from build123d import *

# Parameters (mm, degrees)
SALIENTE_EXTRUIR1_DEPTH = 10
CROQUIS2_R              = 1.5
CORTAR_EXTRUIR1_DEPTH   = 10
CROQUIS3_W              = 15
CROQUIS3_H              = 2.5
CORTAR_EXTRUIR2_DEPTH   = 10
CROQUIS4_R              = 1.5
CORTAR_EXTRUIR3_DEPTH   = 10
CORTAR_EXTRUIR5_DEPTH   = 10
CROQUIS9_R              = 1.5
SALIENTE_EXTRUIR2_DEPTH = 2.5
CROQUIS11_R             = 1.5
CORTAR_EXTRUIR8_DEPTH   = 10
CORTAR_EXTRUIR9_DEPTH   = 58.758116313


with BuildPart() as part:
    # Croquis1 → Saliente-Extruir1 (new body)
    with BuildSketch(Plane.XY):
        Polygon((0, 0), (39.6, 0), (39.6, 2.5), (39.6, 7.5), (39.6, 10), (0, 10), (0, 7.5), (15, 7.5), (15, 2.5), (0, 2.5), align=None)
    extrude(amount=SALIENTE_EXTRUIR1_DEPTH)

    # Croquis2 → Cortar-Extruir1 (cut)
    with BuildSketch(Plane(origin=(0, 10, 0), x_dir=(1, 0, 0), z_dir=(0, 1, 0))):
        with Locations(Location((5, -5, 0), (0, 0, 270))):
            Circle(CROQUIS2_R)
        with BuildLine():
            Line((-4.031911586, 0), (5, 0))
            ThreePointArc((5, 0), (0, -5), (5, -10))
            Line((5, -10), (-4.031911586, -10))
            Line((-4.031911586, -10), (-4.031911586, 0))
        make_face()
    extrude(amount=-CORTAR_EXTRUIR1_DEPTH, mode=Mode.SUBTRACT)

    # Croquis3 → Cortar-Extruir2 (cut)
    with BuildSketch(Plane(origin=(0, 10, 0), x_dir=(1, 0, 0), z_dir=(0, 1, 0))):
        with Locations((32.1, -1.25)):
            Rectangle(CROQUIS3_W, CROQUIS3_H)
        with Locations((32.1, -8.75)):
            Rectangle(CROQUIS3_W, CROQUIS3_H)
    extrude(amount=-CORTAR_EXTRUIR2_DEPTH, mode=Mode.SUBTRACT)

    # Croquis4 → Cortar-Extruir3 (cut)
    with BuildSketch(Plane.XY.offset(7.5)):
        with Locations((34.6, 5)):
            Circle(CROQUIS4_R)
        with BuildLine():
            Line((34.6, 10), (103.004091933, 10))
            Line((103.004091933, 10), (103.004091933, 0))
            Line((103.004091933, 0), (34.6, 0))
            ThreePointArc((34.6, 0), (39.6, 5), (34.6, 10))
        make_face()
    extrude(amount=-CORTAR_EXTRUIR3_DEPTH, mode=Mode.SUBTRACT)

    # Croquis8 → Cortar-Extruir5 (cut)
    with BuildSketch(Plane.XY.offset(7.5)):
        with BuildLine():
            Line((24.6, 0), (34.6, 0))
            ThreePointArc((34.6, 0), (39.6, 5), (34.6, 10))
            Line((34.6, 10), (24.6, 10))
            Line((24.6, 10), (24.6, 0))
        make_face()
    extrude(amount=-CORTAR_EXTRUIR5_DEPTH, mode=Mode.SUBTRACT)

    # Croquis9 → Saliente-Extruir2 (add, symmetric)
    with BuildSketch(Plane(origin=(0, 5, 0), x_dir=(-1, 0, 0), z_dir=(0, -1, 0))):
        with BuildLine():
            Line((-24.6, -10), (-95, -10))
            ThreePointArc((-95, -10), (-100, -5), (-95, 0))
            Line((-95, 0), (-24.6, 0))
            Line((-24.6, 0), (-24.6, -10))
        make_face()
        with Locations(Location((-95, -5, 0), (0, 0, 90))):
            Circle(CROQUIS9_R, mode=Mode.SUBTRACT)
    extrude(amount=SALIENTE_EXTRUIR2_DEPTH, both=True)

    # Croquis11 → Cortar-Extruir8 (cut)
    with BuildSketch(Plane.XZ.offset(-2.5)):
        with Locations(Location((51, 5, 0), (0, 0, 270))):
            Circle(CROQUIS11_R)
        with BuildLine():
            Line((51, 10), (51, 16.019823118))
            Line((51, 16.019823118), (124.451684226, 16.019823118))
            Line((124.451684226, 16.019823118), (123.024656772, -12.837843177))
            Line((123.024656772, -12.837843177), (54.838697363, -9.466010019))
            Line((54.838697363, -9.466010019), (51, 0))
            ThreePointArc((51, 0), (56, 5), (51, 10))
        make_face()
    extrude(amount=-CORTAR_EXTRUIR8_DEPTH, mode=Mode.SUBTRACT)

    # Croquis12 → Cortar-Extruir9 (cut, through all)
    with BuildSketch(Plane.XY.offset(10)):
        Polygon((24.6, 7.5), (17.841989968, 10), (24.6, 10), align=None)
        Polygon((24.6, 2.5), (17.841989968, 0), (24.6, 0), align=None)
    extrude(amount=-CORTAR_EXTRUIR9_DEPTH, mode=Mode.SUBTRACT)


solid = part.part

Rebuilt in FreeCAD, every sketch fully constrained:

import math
import FreeCAD as App
import Part
import Sketcher


def add_polygon(sketch, points):
    """Adds a closed chain of lines whose ends are joined by coincident constraints."""
    first, n = sketch.GeometryCount, len(points)
    for a, b in zip(points, points[1:] + points[:1]):
        sketch.addGeometry(Part.LineSegment(App.Vector(*a, 0), App.Vector(*b, 0)), False)
    for i in range(n):
        sketch.addConstraint(Sketcher.Constraint("Coincident", first + i, 2, first + (i + 1) % n, 1))

doc = App.newDocument("Part")
body = doc.addObject("PartDesign::Body", "Body")

# Sketch on XY plane
sketch1 = body.newObject("Sketcher::SketchObject", "Sketch")
sketch1.AttachmentSupport = (doc.getObject("XY_Plane"), [""])
sketch1.MapMode = "FlatFace"
add_polygon(sketch1, [(0, 0), (39.6, 0), (39.6, 10), (0, 10), (0, 7.5), (15, 7.5), (15, 2.5), (0, 2.5)])  # lines 0-7
sketch1.addConstraint([
    Sketcher.Constraint("Horizontal", 0),
    Sketcher.Constraint("Vertical", 1),
    Sketcher.Constraint("Horizontal", 2),
    Sketcher.Constraint("Vertical", 3),
    Sketcher.Constraint("Horizontal", 4),
    Sketcher.Constraint("Vertical", 5),
    Sketcher.Constraint("Horizontal", 6),
    Sketcher.Constraint("Vertical", 7),
    Sketcher.Constraint("Coincident", 7, 2, -1, 1),
    Sketcher.Constraint("PointOnObject", 2, 2, -2),
    Sketcher.Constraint("Equal", 3, 7),
    Sketcher.Constraint("DistanceX", 4, 1, 4, 2, 15.0),
    Sketcher.Constraint("DistanceY", 1, 1, 1, 2, 10.0),
    Sketcher.Constraint("DistanceY", 5, 2, 5, 1, 5.0),
    Sketcher.Constraint("DistanceX", 0, 1, 0, 2, 39.6),
])
pad1 = body.newObject("PartDesign::Pad", "Pad")
pad1.Profile = sketch1
pad1.Length = 10

# Sketch on XZ plane
sketch2 = body.newObject("Sketcher::SketchObject", "Sketch001")
sketch2.AttachmentSupport = (doc.getObject("XZ_Plane"), [""])
sketch2.MapMode = "FlatFace"
sketch2.AttachmentOffset = App.Placement(App.Vector(0, 0, -10), App.Rotation())
sketch2.addGeometry([
    Part.Circle(App.Vector(5, 5, 0), App.Vector(0, 0, 1), 1.5),  # 0
    Part.LineSegment(App.Vector(5, 0, 0), App.Vector(-4, 0, 0)),  # 1
    Part.LineSegment(App.Vector(-4, 0, 0), App.Vector(-4, 10, 0)),  # 2
    Part.LineSegment(App.Vector(-4, 10, 0), App.Vector(5, 10, 0)),  # 3
    Part.ArcOfCircle(Part.Circle(App.Vector(5, 5, 0), App.Vector(0, 0, 1), 5), math.radians(90), math.radians(270)),  # 4
], False)
sketch2.addConstraint([
    Sketcher.Constraint("Coincident", 1, 2, 2, 1),
    Sketcher.Constraint("Coincident", 2, 2, 3, 1),
    Sketcher.Constraint("Tangent", 3, 2, 4, 1),
    Sketcher.Constraint("Tangent", 4, 2, 1, 1),
    Sketcher.Constraint("Horizontal", 1),
    Sketcher.Constraint("Vertical", 2),
    Sketcher.Constraint("Horizontal", 3),
    Sketcher.Constraint("Coincident", 4, 3, 0, 3),
    Sketcher.Constraint("PointOnObject", 1, 2, -1),
    Sketcher.Constraint("Diameter", 0, 3.0),
    Sketcher.Constraint("Radius", 4, 5.0),
    Sketcher.Constraint("DistanceX", -1, 1, 0, 3, 5.0),
    Sketcher.Constraint("DistanceX", 1, 2, 1, 1, 9.031912),
])
pocket1 = body.newObject("PartDesign::Pocket", "Pocket")
pocket1.Profile = sketch2
pocket1.Length = 10
pocket1.Reversed = True

# Sketch on XZ plane
sketch3 = body.newObject("Sketcher::SketchObject", "Sketch002")
sketch3.AttachmentSupport = (doc.getObject("XZ_Plane"), [""])
sketch3.MapMode = "FlatFace"
sketch3.AttachmentOffset = App.Placement(App.Vector(0, 0, -10), App.Rotation())
add_polygon(sketch3, [(24.6, 0), (24.6, 2.5), (39.6, 2.5), (39.6, 0)])  # lines 0-3
add_polygon(sketch3, [(24.6, 7.5), (24.6, 10), (39.6, 10), (39.6, 7.5)])  # lines 4-7
sketch3.addConstraint([
    Sketcher.Constraint("Vertical", 0),
    Sketcher.Constraint("Horizontal", 1),
    Sketcher.Constraint("Vertical", 2),
    Sketcher.Constraint("Horizontal", 3),
    Sketcher.Constraint("Vertical", 4),
    Sketcher.Constraint("Horizontal", 5),
    Sketcher.Constraint("Vertical", 6),
    Sketcher.Constraint("Horizontal", 7),
    Sketcher.Constraint("PointOnObject", 2, 2, -1),
    Sketcher.Constraint("Vertical", 3, 2, 4, 2),
    Sketcher.Constraint("Vertical", 2, 2, 5, 2),
    Sketcher.Constraint("Equal", 2, 4),
    Sketcher.Constraint("DistanceX", 1, 1, 1, 2, 15.0),
    Sketcher.Constraint("DistanceY", 0, 1, 0, 2, 2.5),
    Sketcher.Constraint("DistanceY", -1, 1, 4, 2, 10.0),
    Sketcher.Constraint("DistanceX", -1, 1, 0, 2, 24.6),
])
pocket2 = body.newObject("PartDesign::Pocket", "Pocket001")
pocket2.Profile = sketch3
pocket2.Length = 10
pocket2.Reversed = True

# Sketch on XY plane
sketch4 = body.newObject("Sketcher::SketchObject", "Sketch003")
sketch4.AttachmentSupport = (doc.getObject("XY_Plane"), [""])
sketch4.MapMode = "FlatFace"
sketch4.AttachmentOffset = App.Placement(App.Vector(0, 0, 7.5), App.Rotation())
sketch4.addGeometry([
    Part.Circle(App.Vector(34.6, 5, 0), App.Vector(0, 0, 1), 1.5),  # 0
    Part.LineSegment(App.Vector(103, 10, 0), App.Vector(34.6, 10, 0)),  # 1
    Part.ArcOfCircle(Part.Circle(App.Vector(34.6, 5, 0), App.Vector(0, 0, 1), 5), math.radians(-90), math.radians(90)),  # 2
    Part.LineSegment(App.Vector(34.6, 0, 0), App.Vector(103, 0, 0)),  # 3
    Part.LineSegment(App.Vector(103, 0, 0), App.Vector(103, 10, 0)),  # 4
], False)
sketch4.addConstraint([
    Sketcher.Constraint("Tangent", 1, 2, 2, 2),
    Sketcher.Constraint("Tangent", 2, 1, 3, 1),
    Sketcher.Constraint("Coincident", 3, 2, 4, 1),
    Sketcher.Constraint("Coincident", 4, 2, 1, 1),
    Sketcher.Constraint("Horizontal", 1),
    Sketcher.Constraint("Horizontal", 3),
    Sketcher.Constraint("Vertical", 4),
    Sketcher.Constraint("Coincident", 2, 3, 0, 3),
    Sketcher.Constraint("PointOnObject", 2, 1, -1),
    Sketcher.Constraint("Diameter", 0, 3.0),
    Sketcher.Constraint("Radius", 2, 5.0),
    Sketcher.Constraint("DistanceX", -1, 1, 0, 3, 34.6),
    Sketcher.Constraint("DistanceX", 1, 2, 1, 1, 68.404092),
])
pocket3 = body.newObject("PartDesign::Pocket", "Pocket002")
pocket3.Profile = sketch4
pocket3.Length = 10

# Sketch on XY plane
sketch5 = body.newObject("Sketcher::SketchObject", "Sketch004")
sketch5.AttachmentSupport = (doc.getObject("XY_Plane"), [""])
sketch5.MapMode = "FlatFace"
sketch5.AttachmentOffset = App.Placement(App.Vector(0, 0, 7.5), App.Rotation())
sketch5.addGeometry([
    Part.LineSegment(App.Vector(25, 0, 0), App.Vector(35, 0, 0)),
    Part.ArcOfCircle(Part.Circle(App.Vector(35, 5, 0), App.Vector(0, 0, 1), 5), math.radians(-90), math.radians(90)),
    Part.LineSegment(App.Vector(35, 10, 0), App.Vector(25, 10, 0)),
    Part.LineSegment(App.Vector(25, 10, 0), App.Vector(25, 0, 0)),
], False)
sketch5.addConstraint([
    Sketcher.Constraint("Tangent", 0, 2, 1, 1),
    Sketcher.Constraint("Tangent", 1, 2, 2, 1),
    Sketcher.Constraint("Coincident", 2, 2, 3, 1),
    Sketcher.Constraint("Coincident", 3, 2, 0, 1),
    Sketcher.Constraint("Horizontal", 0),
    Sketcher.Constraint("Horizontal", 2),
    Sketcher.Constraint("Vertical", 3),
    Sketcher.Constraint("PointOnObject", 0, 2, -1),
    Sketcher.Constraint("Equal", 2, 3),
    Sketcher.Constraint("Radius", 1, 5.0),
    Sketcher.Constraint("DistanceX", -1, 1, 1, 3, 34.6),
])
pocket4 = body.newObject("PartDesign::Pocket", "Pocket003")
pocket4.Profile = sketch5
pocket4.Length = 10

# Sketch on XZ plane
sketch6 = body.newObject("Sketcher::SketchObject", "Sketch005")
sketch6.AttachmentSupport = (doc.getObject("XZ_Plane"), [""])
sketch6.MapMode = "FlatFace"
sketch6.AttachmentOffset = App.Placement(App.Vector(0, 0, -5), App.Rotation())
sketch6.addGeometry([
    Part.LineSegment(App.Vector(95, 10, 0), App.Vector(24.6, 10, 0)),  # 0
    Part.LineSegment(App.Vector(24.6, 10, 0), App.Vector(24.6, 0, 0)),  # 1
    Part.LineSegment(App.Vector(24.6, 0, 0), App.Vector(95, 0, 0)),  # 2
    Part.ArcOfCircle(Part.Circle(App.Vector(95, 5, 0), App.Vector(0, 0, 1), 5), math.radians(-90), math.radians(90)),  # 3
    Part.Circle(App.Vector(95, 5, 0), App.Vector(0, 0, 1), 1.5),  # 4
], False)
sketch6.addConstraint([
    Sketcher.Constraint("Coincident", 0, 2, 1, 1),
    Sketcher.Constraint("Coincident", 1, 2, 2, 1),
    Sketcher.Constraint("Tangent", 2, 2, 3, 1),
    Sketcher.Constraint("Tangent", 3, 2, 0, 1),
    Sketcher.Constraint("Horizontal", 0),
    Sketcher.Constraint("Vertical", 1),
    Sketcher.Constraint("Horizontal", 2),
    Sketcher.Constraint("Coincident", 4, 3, 3, 3),
    Sketcher.Constraint("PointOnObject", 1, 2, -1),
    Sketcher.Constraint("Diameter", 4, 3.0),
    Sketcher.Constraint("Radius", 3, 5.0),
    Sketcher.Constraint("DistanceX", 0, 2, 0, 1, 70.4),
    Sketcher.Constraint("DistanceX", -1, 1, 3, 3, 95.0),
])
pad2 = body.newObject("PartDesign::Pad", "Pad001")
pad2.Profile = sketch6
pad2.Length = 5
pad2.Midplane = True

# Sketch on XZ plane
sketch7 = body.newObject("Sketcher::SketchObject", "Sketch006")
sketch7.AttachmentSupport = (doc.getObject("XZ_Plane"), [""])
sketch7.MapMode = "FlatFace"
sketch7.AttachmentOffset = App.Placement(App.Vector(0, 0, -2.5), App.Rotation())
sketch7.addGeometry([
    Part.Circle(App.Vector(51, 5, 0), App.Vector(0, 0, 1), 1.5),  # 0
    Part.LineSegment(App.Vector(51, 16, 0), App.Vector(51, 10, 0)),  # 1
    Part.ArcOfCircle(Part.Circle(App.Vector(51, 5, 0), App.Vector(0, 0, 1), 5), math.radians(-90), math.radians(90)),  # 2
    Part.LineSegment(App.Vector(51, 0, 0), App.Vector(54.8, -9.5, 0)),  # 3
    Part.LineSegment(App.Vector(54.8, -9.5, 0), App.Vector(123, -12.8, 0)),  # 4
    Part.LineSegment(App.Vector(123, -12.8, 0), App.Vector(124.5, 16, 0)),  # 5
    Part.LineSegment(App.Vector(124.5, 16, 0), App.Vector(51, 16, 0)),  # 6
], False)
sketch7.addConstraint([
    Sketcher.Constraint("Coincident", 1, 2, 2, 2),
    Sketcher.Constraint("Coincident", 2, 1, 3, 1),
    Sketcher.Constraint("Coincident", 3, 2, 4, 1),
    Sketcher.Constraint("Coincident", 4, 2, 5, 1),
    Sketcher.Constraint("Coincident", 5, 2, 6, 1),
    Sketcher.Constraint("Coincident", 6, 2, 1, 1),
    Sketcher.Constraint("Vertical", 1),
    Sketcher.Constraint("Horizontal", 6),
    Sketcher.Constraint("Coincident", 2, 3, 0, 3),
    Sketcher.Constraint("PointOnObject", 2, 1, -1),
    Sketcher.Constraint("Perpendicular", 4, 5),
    Sketcher.Constraint("Vertical", 2, 3, 1, 2),
    Sketcher.Constraint("Vertical", 1, 2, 2, 1),
    Sketcher.Constraint("Diameter", 0, 3.0),
    Sketcher.Constraint("Radius", 2, 5.0),
    Sketcher.Constraint("DistanceX", -1, 1, 0, 3, 51.0),
    Sketcher.Constraint("Distance", 3, 10.214741),
    Sketcher.Constraint("Distance", 4, 68.269278),
    Sketcher.Constraint("Distance", 5, 28.892928),
    Sketcher.Constraint("DistanceX", 6, 2, 6, 1, 73.451684),
    Sketcher.Constraint("DistanceY", 1, 2, 1, 1, 6.019823),
])
pocket5 = body.newObject("PartDesign::Pocket", "Pocket004")
pocket5.Profile = sketch7
pocket5.Length = 10

# Sketch on XY plane
sketch8 = body.newObject("Sketcher::SketchObject", "Sketch007")
sketch8.AttachmentSupport = (doc.getObject("XY_Plane"), [""])
sketch8.MapMode = "FlatFace"
sketch8.AttachmentOffset = App.Placement(App.Vector(0, 0, 10), App.Rotation())
add_polygon(sketch8, [(17.8, 10), (24.6, 7.5), (24.6, 10)])  # lines 0-2
add_polygon(sketch8, [(24.6, 2.5), (17.8, 0), (24.6, 0)])  # lines 3-5
sketch8.addConstraint([
    Sketcher.Constraint("Vertical", 1),
    Sketcher.Constraint("Horizontal", 2),
    Sketcher.Constraint("Horizontal", 4),
    Sketcher.Constraint("Vertical", 5),
    Sketcher.Constraint("PointOnObject", 3, 2, -1),
    Sketcher.Constraint("Vertical", 2, 2, 3, 2),
    Sketcher.Constraint("Vertical", 1, 2, 4, 2),
    Sketcher.Constraint("Equal", 1, 5),
    Sketcher.Constraint("DistanceY", 1, 1, 1, 2, 2.5),
    Sketcher.Constraint("DistanceY", -1, 1, 1, 2, 10.0),
    Sketcher.Constraint("DistanceX", -1, 1, 0, 2, 24.6),
    Sketcher.Constraint("Distance", 0, 7.205602),
])
pocket6 = body.newObject("PartDesign::Pocket", "Pocket005")
pocket6.Profile = sketch8
pocket6.Type = "ThroughAll"

doc.recompute()
